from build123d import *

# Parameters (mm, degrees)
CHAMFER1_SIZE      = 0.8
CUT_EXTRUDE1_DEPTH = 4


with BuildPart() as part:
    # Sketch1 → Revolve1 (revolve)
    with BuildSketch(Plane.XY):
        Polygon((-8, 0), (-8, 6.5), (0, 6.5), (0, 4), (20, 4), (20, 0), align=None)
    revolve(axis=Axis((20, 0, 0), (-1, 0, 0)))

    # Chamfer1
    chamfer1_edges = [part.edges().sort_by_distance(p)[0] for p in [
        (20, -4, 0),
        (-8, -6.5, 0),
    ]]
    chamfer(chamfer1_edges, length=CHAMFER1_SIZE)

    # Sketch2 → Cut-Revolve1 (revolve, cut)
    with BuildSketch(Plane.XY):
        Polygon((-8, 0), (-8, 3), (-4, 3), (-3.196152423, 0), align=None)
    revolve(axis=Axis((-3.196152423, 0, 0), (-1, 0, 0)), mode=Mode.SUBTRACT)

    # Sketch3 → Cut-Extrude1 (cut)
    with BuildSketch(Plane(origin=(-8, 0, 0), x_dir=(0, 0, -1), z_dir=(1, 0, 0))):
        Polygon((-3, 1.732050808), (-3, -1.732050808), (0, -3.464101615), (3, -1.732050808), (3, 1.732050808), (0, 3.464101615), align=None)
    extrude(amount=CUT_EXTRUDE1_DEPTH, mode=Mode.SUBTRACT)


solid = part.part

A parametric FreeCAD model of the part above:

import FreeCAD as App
import Part
import Sketcher
Q = App.Units.Quantity


def edges_at(feature, points):
    """Names of the edges that pass closest to the given points."""
    edges = feature.Shape.Edges
    near = lambda p: min(range(len(edges)), key=lambda i: edges[i].distToShape(Part.Vertex(*p))[0])
    return sorted({f"Edge{near(p) + 1}" for p in points})


def add_polygon(sketch, points):
    """Adds a closed chain of lines whose ends are joined by coincident constraints."""
    first, n = sketch.GeometryCount, len(points)
    for a, b in zip(points, points[1:] + points[:1]):
        sketch.addGeometry(Part.LineSegment(App.Vector(*a, 0), App.Vector(*b, 0)), False)
    for i in range(n):
        sketch.addConstraint(Sketcher.Constraint("Coincident", first + i, 2, first + (i + 1) % n, 1))

doc = App.newDocument("Part")
params = doc.addObject("Spreadsheet::Sheet", "Params")
for row, (alias, value) in enumerate([
    ("sketch1_width", "28 mm"),
    ("sketch1_width2", "20 mm"),
    ("sketch1_height", "4 mm"),
    ("sketch1_height2", "6.5 mm"),
    ("revolution_angle", "360 deg"),
    ("chamfer_size", "0.8 mm"),
    ("sketch2_width", "4 mm"),
    ("sketch2_height", "3 mm"),
    ("groove_angle", "360 deg"),
    ("pocket1_length", "4 mm"),
], start=1):
    params.set(f"A{row}", alias)
    params.set(f"B{row}", "=" + value)
    params.setAlias(f"B{row}", alias)

body = doc.addObject("PartDesign::Body", "Body")

# Sketch on XY plane
sketch1 = body.newObject("Sketcher::SketchObject", "Sketch")
sketch1.AttachmentSupport = (doc.getObject("XY_Plane"), [""])
sketch1.MapMode = "FlatFace"
add_polygon(sketch1, [(-8, 6.5), (-8, 0), (20, 0), (20, 4), (0, 4), (0, 6.5)])  # lines 0-5
sketch1.addConstraint(Sketcher.Constraint("Vertical", 0))
sketch1.addConstraint(Sketcher.Constraint("Horizontal", 1))
sketch1.addConstraint(Sketcher.Constraint("Vertical", 2))
sketch1.addConstraint(Sketcher.Constraint("Horizontal", 3))
sketch1.addConstraint(Sketcher.Constraint("Vertical", 4))
sketch1.addConstraint(Sketcher.Constraint("Horizontal", 5))
sketch1.addConstraint(Sketcher.Constraint("PointOnObject", 0, 2, -1))
sketch1.addConstraint(Sketcher.Constraint("PointOnObject", 3, 2, -2))
sketch1.addConstraint(Sketcher.Constraint("DistanceX", 1, 1, 1, 2, Q("28 mm")))
sketch1.addConstraint(Sketcher.Constraint("DistanceX", 3, 2, 3, 1, Q("20 mm")))
sketch1.addConstraint(Sketcher.Constraint("DistanceY", 2, 1, 2, 2, Q("4 mm")))
sketch1.addConstraint(Sketcher.Constraint("DistanceY", 0, 2, 0, 1, Q("6.5 mm")))
sketch1.setExpression("Constraints[14]", "Params.sketch1_width")
sketch1.setExpression("Constraints[15]", "Params.sketch1_width2")
sketch1.setExpression("Constraints[16]", "Params.sketch1_height")
sketch1.setExpression("Constraints[17]", "Params.sketch1_height2")
revolution = body.newObject("PartDesign::Revolution", "Revolution")
revolution.Profile = sketch1
revolution.ReferenceAxis = (sketch1, ["H_Axis"])
revolution.setExpression("Angle", "Params.revolution_angle")
doc.recompute()

chamfer = body.newObject("PartDesign::Chamfer", "Chamfer")
chamfer.Base = (revolution, edges_at(revolution, [(20, -4, 0), (-8, -6.5, 0)]))
chamfer.setExpression("Size", "Params.chamfer_size")

# Sketch on XY plane
sketch2 = body.newObject("Sketcher::SketchObject", "Sketch001")
sketch2.AttachmentSupport = (doc.getObject("XY_Plane"), [""])
sketch2.MapMode = "FlatFace"
add_polygon(sketch2, [(-8, 3), (-8, 0), (-3.2, 0), (-4, 3)])  # lines 0-3
sketch2.addConstraint(Sketcher.Constraint("Vertical", 0))
sketch2.addConstraint(Sketcher.Constraint("Horizontal", 1))
sketch2.addConstraint(Sketcher.Constraint("Horizontal", 3))
sketch2.addConstraint(Sketcher.Constraint("PointOnObject", 0, 2, -1))
sketch2.addConstraint(Sketcher.Constraint("DistanceX", 3, 2, 3, 1, Q("4 mm")))
sketch2.addConstraint(Sketcher.Constraint("DistanceY", 0, 2, 0, 1, Q("3 mm")))
sketch2.addConstraint(Sketcher.Constraint("Angle", 2, Q("105 deg")))
sketch2.addConstraint(Sketcher.Constraint("DistanceX", 0, 2, -1, 1, Q("8 mm")))
sketch2.setExpression("Constraints[8]", "Params.sketch2_width")
sketch2.setExpression("Constraints[9]", "Params.sketch2_height")
groove = body.newObject("PartDesign::Groove", "Groove")
groove.Profile = sketch2
groove.ReferenceAxis = (sketch2, ["H_Axis"])
groove.setExpression("Angle", "Params.groove_angle")

# Sketch on YZ plane
sketch3 = body.newObject("Sketcher::SketchObject", "Sketch002")
sketch3.AttachmentSupport = (doc.getObject("YZ_Plane"), [""])
sketch3.MapMode = "FlatFace"
sketch3.AttachmentOffset = App.Placement(App.Vector(0, 0, -8), App.Rotation())
add_polygon(sketch3, [(1.7, 3), (-1.7, 3), (-3.5, 0), (-1.7, -3), (1.7, -3), (3.5, 0)])  # lines 0-5
sketch3.addConstraint(Sketcher.Constraint("Horizontal", 0))
sketch3.addConstraint(Sketcher.Constraint("Horizontal", 3))
sketch3.addConstraint(Sketcher.Constraint("Symmetric", 0, 2, 3, 2, -1, 1))
sketch3.addConstraint(Sketcher.Constraint("Symmetric", 1, 2, 4, 2, -1, 1))
sketch3.addConstraint(Sketcher.Constraint("PointOnObject", 1, 2, -1))
sketch3.addConstraint(Sketcher.Constraint("Parallel", 2, 5))
sketch3.addConstraint(Sketcher.Constraint("Vertical", 0, 2, 2, 2))
sketch3.addConstraint(Sketcher.Constraint("Angle", 1, Q("-120 deg")))
sketch3.addConstraint(Sketcher.Constraint("DistanceY", -1, 1, 0, 2, Q("3 mm")))
sketch3.addConstraint(Sketcher.Constraint("DistanceX", 0, 2, 0, 1, Q("3.464102 mm")))
pocket1 = body.newObject("PartDesign::Pocket", "Pocket")
pocket1.Profile = sketch3
pocket1.setExpression("Length", "Params.pocket1_length")
pocket1.Reversed = True

doc.recompute()
